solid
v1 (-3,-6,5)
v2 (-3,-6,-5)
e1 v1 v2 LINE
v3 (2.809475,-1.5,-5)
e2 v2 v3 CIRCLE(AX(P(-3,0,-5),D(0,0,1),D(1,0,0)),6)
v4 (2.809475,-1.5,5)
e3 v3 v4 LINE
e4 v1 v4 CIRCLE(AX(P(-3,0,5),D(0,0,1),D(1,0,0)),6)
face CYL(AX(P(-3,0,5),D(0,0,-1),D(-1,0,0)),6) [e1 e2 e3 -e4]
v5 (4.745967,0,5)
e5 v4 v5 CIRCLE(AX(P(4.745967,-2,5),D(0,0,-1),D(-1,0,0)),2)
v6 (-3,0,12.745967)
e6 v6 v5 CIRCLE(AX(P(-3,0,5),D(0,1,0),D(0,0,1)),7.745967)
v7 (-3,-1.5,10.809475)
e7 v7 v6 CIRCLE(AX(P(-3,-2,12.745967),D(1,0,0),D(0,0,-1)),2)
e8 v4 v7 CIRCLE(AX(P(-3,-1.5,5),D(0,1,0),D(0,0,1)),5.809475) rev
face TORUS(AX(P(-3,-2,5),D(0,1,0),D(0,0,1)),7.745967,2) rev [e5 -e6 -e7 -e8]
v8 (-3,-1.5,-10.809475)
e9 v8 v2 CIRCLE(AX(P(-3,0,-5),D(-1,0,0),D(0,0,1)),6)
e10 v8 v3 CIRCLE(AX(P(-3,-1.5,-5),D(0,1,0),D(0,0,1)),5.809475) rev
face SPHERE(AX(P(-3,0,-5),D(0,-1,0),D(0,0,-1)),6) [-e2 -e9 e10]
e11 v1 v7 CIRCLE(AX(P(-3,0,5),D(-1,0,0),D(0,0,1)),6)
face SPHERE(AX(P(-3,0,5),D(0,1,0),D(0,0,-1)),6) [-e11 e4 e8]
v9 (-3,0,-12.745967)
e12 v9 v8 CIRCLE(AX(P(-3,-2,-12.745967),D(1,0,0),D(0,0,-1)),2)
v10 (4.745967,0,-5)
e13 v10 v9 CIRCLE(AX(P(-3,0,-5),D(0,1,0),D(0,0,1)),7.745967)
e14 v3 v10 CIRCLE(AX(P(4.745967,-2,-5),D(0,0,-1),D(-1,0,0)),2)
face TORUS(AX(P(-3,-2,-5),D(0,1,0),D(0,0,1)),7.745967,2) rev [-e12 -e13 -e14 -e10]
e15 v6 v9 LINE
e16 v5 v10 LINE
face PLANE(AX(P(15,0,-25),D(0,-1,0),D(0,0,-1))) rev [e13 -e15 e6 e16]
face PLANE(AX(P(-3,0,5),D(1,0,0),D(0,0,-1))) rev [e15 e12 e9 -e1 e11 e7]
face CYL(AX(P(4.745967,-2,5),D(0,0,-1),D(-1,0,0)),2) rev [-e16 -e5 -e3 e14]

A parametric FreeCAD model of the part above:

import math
import FreeCAD as App
import Part
import Sketcher
from FreeCAD import Vector
Q = App.Units.Quantity


def edges_at(feature, points):
    """Names of the edges that pass closest to the given points."""
    edges = feature.Shape.Edges
    near = lambda p: min(range(len(edges)), key=lambda i: edges[i].distToShape(Part.Vertex(*p))[0])
    return sorted({f"Edge{near(p) + 1}" for p in points})


def add_polygon(sketch, points):
    """Adds a closed chain of lines whose ends are joined by coincident constraints."""
    first, n = sketch.GeometryCount, len(points)
    for a, b in zip(points, points[1:] + points[:1]):
        sketch.addGeometry(Part.LineSegment(App.Vector(*a, 0), App.Vector(*b, 0)), False)
    for i in range(n):
        sketch.addConstraint(Sketcher.Constraint("Coincident", first + i, 2, first + (i + 1) % n, 1))

doc = App.newDocument("Part")
body = doc.addObject("PartDesign::Body", "Body")

# Sketch on XY plane
sketch1 = doc.addObject("Sketcher::SketchObject", "Sketch")
body.addObject(sketch1)
sketch1.AttachmentSupport = (doc.XY_Plane, [""])
sketch1.MapMode = "FlatFace"
add_polygon(sketch1, [(-15, 3.5), (-15, 0), (15, 0), (15, 3.5)])  # lines 0-3
sketch1.addConstraint([
    Sketcher.Constraint("Vertical", 0),
    Sketcher.Constraint("Horizontal", 1),
    Sketcher.Constraint("Vertical", 2),
    Sketcher.Constraint("Horizontal", 3),
    Sketcher.Constraint("Symmetric", 0, 2, 1, 2, -1, 1),
    Sketcher.Constraint("DistanceX", 1, 1, 1, 2, Q("30 mm")),
    Sketcher.Constraint("DistanceY", 0, 2, 0, 1, Q("3.464244 mm")),
])
pad1 = doc.addObject("PartDesign::Pad", "Pad")
body.addObject(pad1)
pad1.Profile = sketch1
pad1.Length = 50
pad1.Midplane = True

# Sketch on XY plane
sketch2 = doc.addObject("Sketcher::SketchObject", "Sketch001")
body.addObject(sketch2)
sketch2.AttachmentSupport = (doc.XY_Plane, [""])
sketch2.MapMode = "FlatFace"
sketch2.addGeometry([
    Part.LineSegment(Vector(-3, 0, 0), Vector(-3, -6, 0)),
    Part.ArcOfCircle(Part.Circle(Vector(-3, 0, 0), Vector(0, 0, 1), 6), math.radians(-90), math.radians(0)),
    Part.LineSegment(Vector(3, 0, 0), Vector(-3, 0, 0)),
], False)
sketch2.addConstraint([
    Sketcher.Constraint("Coincident", 0, 2, 1, 1),
    Sketcher.Constraint("Coincident", 1, 2, 2, 1),
    Sketcher.Constraint("Coincident", 2, 2, 0, 1),
    Sketcher.Constraint("Vertical", 0),
    Sketcher.Constraint("Horizontal", 2),
    Sketcher.Constraint("Coincident", 2, 2, 1, 3),
    Sketcher.Constraint("Symmetric", 1, 2, 2, 2, -1, 1),
    Sketcher.Constraint("Radius", 1, Q("6 mm")),
])
pad2 = doc.addObject("PartDesign::Pad", "Pad001")
body.addObject(pad2)
pad2.Profile = sketch2
pad2.Length = 10
pad2.Midplane = True

# Sketch on XY plane
sketch3 = doc.addObject("Sketcher::SketchObject", "Sketch002")
body.addObject(sketch3)
sketch3.AttachmentSupport = (doc.XY_Plane, [""])
sketch3.MapMode = "FlatFace"
sketch3.AttachmentOffset = App.Placement(Vector(0, 0, 5), App.Rotation())
sketch3.addGeometry([
    Part.LineSegment(Vector(3, 0, 0), Vector(-3, 0, 0)),
    Part.LineSegment(Vector(-3, 0, 0), Vector(-3, -6, 0)),
    Part.ArcOfCircle(Part.Circle(Vector(-3, 0, 0), Vector(0, 0, 1), 6), math.radians(-90), math.radians(0)),
], False)
sketch3.addGeometry(Part.LineSegment(Vector(-3, 0, 0), Vector(-3, -6, 0)), True)  # axis
sketch3.addConstraint([
    Sketcher.Constraint("Coincident", 0, 2, 1, 1),
    Sketcher.Constraint("Coincident", 1, 2, 2, 1),
    Sketcher.Constraint("Coincident", 2, 2, 0, 1),
    Sketcher.Constraint("Horizontal", 0),
    Sketcher.Constraint("Vertical", 1),
    Sketcher.Constraint("Vertical", 3),
    Sketcher.Constraint("Coincident", 0, 2, 2, 3),
    Sketcher.Constraint("Coincident", 3, 1, 2, 3),
    Sketcher.Constraint("Symmetric", 0, 2, 2, 2, -1, 1),
    Sketcher.Constraint("Equal", 1, 3),
    Sketcher.Constraint("Radius", 2, Q("6 mm")),
])
revolution = doc.addObject("PartDesign::Revolution", "Revolution")
body.addObject(revolution)
revolution.Profile = sketch3
revolution.ReferenceAxis = (sketch3, ["Axis0"])
revolution.Angle = 90

# Sketch on XY plane
sketch4 = doc.addObject("Sketcher::SketchObject", "Sketch003")
body.addObject(sketch4)
sketch4.AttachmentSupport = (doc.XY_Plane, [""])
sketch4.MapMode = "FlatFace"
sketch4.AttachmentOffset = App.Placement(Vector(0, 0, -5), App.Rotation())
sketch4.addGeometry([
    Part.LineSegment(Vector(-3, 0, 0), Vector(3, 0, 0)),
    Part.ArcOfCircle(Part.Circle(Vector(-3, 0, 0), Vector(0, 0, 1), 6), math.radians(-90), math.radians(0)),
    Part.LineSegment(Vector(-3, -6, 0), Vector(-3, 0, 0)),
], False)
sketch4.addGeometry(Part.LineSegment(Vector(-3, -6, 0), Vector(-3, 0, 0)), True)  # axis
sketch4.addConstraint([
    Sketcher.Constraint("Coincident", 0, 2, 1, 2),
    Sketcher.Constraint("Coincident", 1, 1, 2, 1),
    Sketcher.Constraint("Coincident", 2, 2, 0, 1),
    Sketcher.Constraint("Horizontal", 0),
    Sketcher.Constraint("Vertical", 2),
    Sketcher.Constraint("Vertical", 3),
    Sketcher.Constraint("Coincident", 2, 2, 1, 3),
    Sketcher.Constraint("Coincident", 3, 1, 1, 1),
    Sketcher.Constraint("Symmetric", 0, 2, 2, 2, -1, 1),
    Sketcher.Constraint("PointOnObject", 3, 2, -1),
    Sketcher.Constraint("Radius", 1, Q("6 mm")),
])
revolution2 = doc.addObject("PartDesign::Revolution", "Revolution001")
body.addObject(revolution2)
revolution2.Profile = sketch4
revolution2.ReferenceAxis = (sketch4, ["Axis0"])
revolution2.Angle = 90
doc.recompute()

fillet = doc.addObject("PartDesign::Fillet", "Fillet")
body.addObject(fillet)
fillet.Base = (revolution2, edges_at(revolution2, [(3, 0, 0), (1.243, 0, 9.243), (1.243, 0, -9.243)]))
fillet.Radius = 2

# Sketch on YZ plane
sketch5 = doc.addObject("Sketcher::SketchObject", "Sketch004")
body.addObject(sketch5)
sketch5.AttachmentSupport = (doc.YZ_Plane, [""])
sketch5.MapMode = "FlatFace"
sketch5.AttachmentOffset = App.Placement(Vector(0, 0, -15), App.Rotation())
add_polygon(sketch5, [(3.5, -25), (0, -25), (0, 25), (3.5, 25)])  # lines 0-3
sketch5.addConstraint([
    Sketcher.Constraint("Horizontal", 0),
    Sketcher.Constraint("Vertical", 1),
    Sketcher.Constraint("Horizontal", 2),
    Sketcher.Constraint("Vertical", 3),
    Sketcher.Constraint("Symmetric", 0, 2, 1, 2, -1, 1),
    Sketcher.Constraint("DistanceY", 1, 1, 1, 2, Q("50 mm")),
    Sketcher.Constraint("DistanceX", 0, 2, 0, 1, Q("3.464244 mm")),
])
pocket1 = doc.addObject("PartDesign::Pocket", "Pocket")
body.addObject(pocket1)
pocket1.Profile = sketch5
pocket1.Type = "ThroughAll"
pocket1.Reversed = True

doc.recompute()
